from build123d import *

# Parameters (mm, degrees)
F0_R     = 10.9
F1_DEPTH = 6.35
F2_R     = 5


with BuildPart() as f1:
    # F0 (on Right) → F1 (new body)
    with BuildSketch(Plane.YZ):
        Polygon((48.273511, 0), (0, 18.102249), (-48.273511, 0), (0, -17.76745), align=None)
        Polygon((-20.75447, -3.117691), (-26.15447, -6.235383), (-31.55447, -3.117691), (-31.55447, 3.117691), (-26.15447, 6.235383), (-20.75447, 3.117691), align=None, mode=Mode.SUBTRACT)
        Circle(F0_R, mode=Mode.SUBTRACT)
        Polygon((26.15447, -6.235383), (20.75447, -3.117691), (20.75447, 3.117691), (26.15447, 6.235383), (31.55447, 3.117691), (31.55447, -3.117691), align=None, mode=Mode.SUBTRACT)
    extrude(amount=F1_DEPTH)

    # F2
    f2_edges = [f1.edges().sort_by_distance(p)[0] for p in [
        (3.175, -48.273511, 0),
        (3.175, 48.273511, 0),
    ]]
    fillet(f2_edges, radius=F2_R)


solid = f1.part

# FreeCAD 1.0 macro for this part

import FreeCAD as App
import Part
import Sketcher

V = App.Vector
Q = App.Units.Quantity


def edges_at(feature, points):
    """Names of the edges that pass closest to the given points."""
    edges = feature.Shape.Edges
    near = lambda p: min(range(len(edges)), key=lambda i: edges[i].distToShape(Part.Vertex(*p))[0])
    return sorted({f"Edge{near(p) + 1}" for p in points})

doc = App.newDocument("Part")
params = doc.addObject("Spreadsheet::Sheet", "Params")
for row, (alias, value) in enumerate([
    ("sketch1_diameter", "21.8 mm"),
    ("pad1_length", "6.35 mm"),
    ("fillet_radius", "5 mm"),
], start=1):
    params.set(f"A{row}", alias)
    params.set(f"B{row}", "=" + value)
    params.setAlias(f"B{row}", alias)

body = doc.addObject("PartDesign::Body", "Body")

# Sketch on YZ plane
sketch1 = body.newObject("Sketcher::SketchObject", "Sketch")
sketch1.AttachmentSupport = (doc.getObject("YZ_Plane"), [""])
sketch1.MapMode = "FlatFace"
sketch1.addGeometry([
    Part.LineSegment(V(48.273511, 0, 0), V(0, 18.102249, 0)),  # 0
    Part.LineSegment(V(0, 18.102249, 0), V(-48.273511, 0, 0)),  # 1
    Part.LineSegment(V(-48.273511, 0, 0), V(0, -17.76745, 0)),  # 2
    Part.LineSegment(V(0, -17.76745, 0), V(48.273511, 0, 0)),  # 3
    Part.LineSegment(V(-20.75447, 3.117691, 0), V(-20.75447, -3.117691, 0)),  # 4
    Part.LineSegment(V(-20.75447, -3.117691, 0), V(-26.15447, -6.235383, 0)),  # 5
    Part.LineSegment(V(-26.15447, -6.235383, 0), V(-31.55447, -3.117691, 0)),  # 6
    Part.LineSegment(V(-31.55447, -3.117691, 0), V(-31.55447, 3.117691, 0)),  # 7
    Part.LineSegment(V(-31.55447, 3.117691, 0), V(-26.15447, 6.235383, 0)),  # 8
    Part.LineSegment(V(-26.15447, 6.235383, 0), V(-20.75447, 3.117691, 0)),  # 9
    Part.Circle(V(0, 0, 0), V(0, 0, 1), 10.9),  # 10
    Part.LineSegment(V(31.55447, -3.117691, 0), V(26.15447, -6.235383, 0)),  # 11
    Part.LineSegment(V(26.15447, -6.235383, 0), V(20.75447, -3.117691, 0)),  # 12
    Part.LineSegment(V(20.75447, -3.117691, 0), V(20.75447, 3.117691, 0)),  # 13
    Part.LineSegment(V(20.75447, 3.117691, 0), V(26.15447, 6.235383, 0)),  # 14
    Part.LineSegment(V(26.15447, 6.235383, 0), V(31.55447, 3.117691, 0)),  # 15
    Part.LineSegment(V(31.55447, 3.117691, 0), V(31.55447, -3.117691, 0)),  # 16
], False)
sketch1.addConstraint([
    Sketcher.Constraint("Coincident", 0, 2, 1, 1),
    Sketcher.Constraint("Coincident", 1, 2, 2, 1),
    Sketcher.Constraint("Coincident", 2, 2, 3, 1),
    Sketcher.Constraint("Coincident", 3, 2, 0, 1),
    Sketcher.Constraint("Coincident", 4, 2, 5, 1),
    Sketcher.Constraint("Coincident", 5, 2, 6, 1),
    Sketcher.Constraint("Coincident", 6, 2, 7, 1),
    Sketcher.Constraint("Coincident", 7, 2, 8, 1),
    Sketcher.Constraint("Coincident", 8, 2, 9, 1),
    Sketcher.Constraint("Coincident", 9, 2, 4, 1),
    Sketcher.Constraint("Coincident", 11, 2, 12, 1),
    Sketcher.Constraint("Coincident", 12, 2, 13, 1),
    Sketcher.Constraint("Coincident", 13, 2, 14, 1),
    Sketcher.Constraint("Coincident", 14, 2, 15, 1),
    Sketcher.Constraint("Coincident", 15, 2, 16, 1),
    Sketcher.Constraint("Coincident", 16, 2, 11, 1),
    Sketcher.Constraint("Vertical", 4),
    Sketcher.Constraint("Vertical", 7),
    Sketcher.Constraint("Vertical", 13),
    Sketcher.Constraint("Vertical", 16),
    Sketcher.Constraint("Coincident", 10, 3, -1, 1),
    Sketcher.Constraint("Symmetric", 1, 2, 3, 2, -1, 1),
    Sketcher.Constraint("Symmetric", 8, 2, 11, 2, -1, 1),
    Sketcher.Constraint("Symmetric", 9, 2, 12, 2, -1, 1),
    Sketcher.Constraint("Symmetric", 5, 2, 14, 2, -1, 1),
    Sketcher.Constraint("Symmetric", 6, 2, 15, 2, -1, 1),
    Sketcher.Constraint("Symmetric", 5, 2, 11, 2, -2),
    Sketcher.Constraint("PointOnObject", 0, 2, -2),
    Sketcher.Constraint("PointOnObject", 1, 2, -1),
    Sketcher.Constraint("PointOnObject", 2, 2, -2),
    Sketcher.Constraint("Parallel", 5, 8),
    Sketcher.Constraint("Parallel", 6, 9),
    Sketcher.Constraint("Parallel", 8, 11),
    Sketcher.Constraint("Parallel", 11, 14),
    Sketcher.Constraint("Horizontal", 4, 2, 6, 2),
    Sketcher.Constraint("Horizontal", 7, 2, 9, 2),
    Sketcher.Constraint("Diameter", 10, Q("21.8 mm")),
    Sketcher.Constraint("Angle", 5, Q("-149.999996 deg")),
    Sketcher.Constraint("DistanceX", 5, 2, 4, 2, Q("5.4 mm")),
    Sketcher.Constraint("DistanceY", 2, 2, 0, 2, Q("35.869699 mm")),
    Sketcher.Constraint("Distance", 0, Q("51.556021 mm")),
    Sketcher.Constraint("DistanceY", 4, 2, 4, 1, Q("6.235382 mm")),
    Sketcher.Constraint("DistanceY", -1, 1, 0, 2, Q("18.102249 mm")),
    Sketcher.Constraint("DistanceX", 4, 2, -1, 1, Q("20.75447 mm")),
])
sketch1.setExpression("Constraints[36]", "Params.sketch1_diameter")
pad1 = body.newObject("PartDesign::Pad", "Pad")
pad1.Profile = sketch1
pad1.setExpression("Length", "Params.pad1_length")
doc.recompute()

fillet = body.newObject("PartDesign::Fillet", "Fillet")
fillet.Base = (pad1, edges_at(pad1, [(3.175, -48.274, 0), (3.175, 48.274, 0)]))
fillet.setExpression("Radius", "Params.fillet_radius")

doc.recompute()
